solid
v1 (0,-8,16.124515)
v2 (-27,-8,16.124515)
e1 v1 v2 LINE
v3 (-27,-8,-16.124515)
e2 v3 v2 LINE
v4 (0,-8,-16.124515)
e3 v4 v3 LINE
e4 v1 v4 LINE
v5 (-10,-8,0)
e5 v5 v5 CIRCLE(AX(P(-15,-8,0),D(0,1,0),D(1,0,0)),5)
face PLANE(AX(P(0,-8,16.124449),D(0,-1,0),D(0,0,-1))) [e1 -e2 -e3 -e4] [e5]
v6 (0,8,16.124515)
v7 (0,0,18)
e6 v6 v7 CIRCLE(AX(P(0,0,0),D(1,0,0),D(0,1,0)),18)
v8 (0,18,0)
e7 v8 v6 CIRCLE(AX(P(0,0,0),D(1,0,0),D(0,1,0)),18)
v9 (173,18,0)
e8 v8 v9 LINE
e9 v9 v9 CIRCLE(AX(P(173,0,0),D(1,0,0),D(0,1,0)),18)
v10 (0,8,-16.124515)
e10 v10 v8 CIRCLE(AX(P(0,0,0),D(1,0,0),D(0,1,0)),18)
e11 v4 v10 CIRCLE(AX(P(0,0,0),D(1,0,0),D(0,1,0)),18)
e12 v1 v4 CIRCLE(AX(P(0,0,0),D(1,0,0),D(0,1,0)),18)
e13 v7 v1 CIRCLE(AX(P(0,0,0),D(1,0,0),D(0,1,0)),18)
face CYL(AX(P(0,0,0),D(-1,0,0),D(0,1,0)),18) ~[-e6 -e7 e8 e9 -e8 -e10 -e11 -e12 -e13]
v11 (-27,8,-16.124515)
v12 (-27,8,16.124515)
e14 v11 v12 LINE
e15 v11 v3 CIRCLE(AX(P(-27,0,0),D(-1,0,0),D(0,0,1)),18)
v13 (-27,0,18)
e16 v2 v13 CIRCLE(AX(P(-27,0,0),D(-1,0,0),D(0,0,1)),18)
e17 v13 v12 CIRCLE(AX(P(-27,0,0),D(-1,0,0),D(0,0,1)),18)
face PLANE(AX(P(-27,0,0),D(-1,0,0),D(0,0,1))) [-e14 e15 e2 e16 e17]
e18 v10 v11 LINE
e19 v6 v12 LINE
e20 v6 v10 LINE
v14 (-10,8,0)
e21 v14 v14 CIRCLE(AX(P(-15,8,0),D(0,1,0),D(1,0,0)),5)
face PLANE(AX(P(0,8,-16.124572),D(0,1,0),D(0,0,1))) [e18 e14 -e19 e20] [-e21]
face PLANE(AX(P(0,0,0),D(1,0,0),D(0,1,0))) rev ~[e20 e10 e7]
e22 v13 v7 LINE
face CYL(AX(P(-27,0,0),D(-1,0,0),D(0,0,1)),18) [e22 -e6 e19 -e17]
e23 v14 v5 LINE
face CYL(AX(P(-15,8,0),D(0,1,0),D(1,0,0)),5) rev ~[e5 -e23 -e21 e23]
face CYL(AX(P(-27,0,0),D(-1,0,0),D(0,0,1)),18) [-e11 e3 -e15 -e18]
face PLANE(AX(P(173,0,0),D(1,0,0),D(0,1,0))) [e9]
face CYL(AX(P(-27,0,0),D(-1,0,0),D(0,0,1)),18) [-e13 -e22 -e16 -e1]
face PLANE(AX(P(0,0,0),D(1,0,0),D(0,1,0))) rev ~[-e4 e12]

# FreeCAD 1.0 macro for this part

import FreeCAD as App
import Part
import Sketcher
from FreeCAD import Vector
Q = App.Units.Quantity


def add_polygon(sketch, points):
    """Adds a closed chain of lines whose ends are joined by coincident constraints."""
    first, n = sketch.GeometryCount, len(points)
    for a, b in zip(points, points[1:] + points[:1]):
        sketch.addGeometry(Part.LineSegment(App.Vector(*a, 0), App.Vector(*b, 0)), False)
    for i in range(n):
        sketch.addConstraint(Sketcher.Constraint("Coincident", first + i, 2, first + (i + 1) % n, 1))

doc = App.newDocument("Part")
body = doc.addObject("PartDesign::Body", "Body")

# Sketch on YZ plane
sketch1 = doc.addObject("Sketcher::SketchObject", "Sketch")
body.addObject(sketch1)
sketch1.AttachmentSupport = (doc.YZ_Plane, [""])
sketch1.MapMode = "FlatFace"
sketch1.addGeometry(Part.Circle(Vector(0, 0, 0), Vector(0, 0, 1), 18), False)
sketch1.addConstraint([
    Sketcher.Constraint("Coincident", 0, 3, -1, 1),
    Sketcher.Constraint("Diameter", 0, Q("36 mm")),
])
pad1 = doc.addObject("PartDesign::Pad", "Pad")
body.addObject(pad1)
pad1.Profile = sketch1
pad1.Length = 173

# Sketch on YZ plane
sketch2 = doc.addObject("Sketcher::SketchObject", "Sketch001")
body.addObject(sketch2)
sketch2.AttachmentSupport = (doc.YZ_Plane, [""])
sketch2.MapMode = "FlatFace"
add_polygon(sketch2, [(8, -20), (-8, -20), (-8, 20), (8, 20)])  # lines 0-3
sketch2.addConstraint([
    Sketcher.Constraint("Horizontal", 0),
    Sketcher.Constraint("Vertical", 1),
    Sketcher.Constraint("Horizontal", 2),
    Sketcher.Constraint("Vertical", 3),
    Sketcher.Constraint("Symmetric", 0, 2, 2, 2, -1, 1),
    Sketcher.Constraint("DistanceX", 0, 2, 0, 1, Q("16 mm")),
    Sketcher.Constraint("DistanceY", 1, 1, 1, 2, Q("40 mm")),
])
pad2 = doc.addObject("PartDesign::Pad", "Pad001")
body.addObject(pad2)
pad2.Profile = sketch2
pad2.Length = 27
pad2.Reversed = True

# Sketch on YZ plane
sketch3 = doc.addObject("Sketcher::SketchObject", "Sketch002")
body.addObject(sketch3)
sketch3.AttachmentSupport = (doc.YZ_Plane, [""])
sketch3.MapMode = "FlatFace"
sketch3.AttachmentOffset = App.Placement(Vector(0, 0, -27), App.Rotation())
sketch3.addGeometry([
    Part.Circle(Vector(0, 0, 0), Vector(0, 0, 1), 50),
    Part.Circle(Vector(0, 0, 0), Vector(0, 0, 1), 18),
], False)
sketch3.addConstraint([
    Sketcher.Constraint("Coincident", 0, 3, -1, 1),
    Sketcher.Constraint("Coincident", 1, 3, -1, 1),
    Sketcher.Constraint("Diameter", 0, Q("100 mm")),
    Sketcher.Constraint("Diameter", 1, Q("36 mm")),
])
pocket1 = doc.addObject("PartDesign::Pocket", "Pocket")
body.addObject(pocket1)
pocket1.Profile = sketch3
pocket1.Length = 27
pocket1.Reversed = True

# Sketch on XZ plane
sketch4 = doc.addObject("Sketcher::SketchObject", "Sketch003")
body.addObject(sketch4)
sketch4.AttachmentSupport = (doc.XZ_Plane, [""])
sketch4.MapMode = "FlatFace"
sketch4.AttachmentOffset = App.Placement(Vector(0, 0, -8), App.Rotation())
sketch4.addGeometry(Part.Circle(Vector(-15, 0, 0), Vector(0, 0, 1), 5), False)
sketch4.addConstraint([
    Sketcher.Constraint("PointOnObject", 0, 3, -1),
    Sketcher.Constraint("Diameter", 0, Q("10 mm")),
    Sketcher.Constraint("DistanceX", 0, 3, -1, 1, Q("15 mm")),
])
pocket2 = doc.addObject("PartDesign::Pocket", "Pocket001")
body.addObject(pocket2)
pocket2.Profile = sketch4
pocket2.Length = 16
pocket2.Reversed = True

doc.recompute()
